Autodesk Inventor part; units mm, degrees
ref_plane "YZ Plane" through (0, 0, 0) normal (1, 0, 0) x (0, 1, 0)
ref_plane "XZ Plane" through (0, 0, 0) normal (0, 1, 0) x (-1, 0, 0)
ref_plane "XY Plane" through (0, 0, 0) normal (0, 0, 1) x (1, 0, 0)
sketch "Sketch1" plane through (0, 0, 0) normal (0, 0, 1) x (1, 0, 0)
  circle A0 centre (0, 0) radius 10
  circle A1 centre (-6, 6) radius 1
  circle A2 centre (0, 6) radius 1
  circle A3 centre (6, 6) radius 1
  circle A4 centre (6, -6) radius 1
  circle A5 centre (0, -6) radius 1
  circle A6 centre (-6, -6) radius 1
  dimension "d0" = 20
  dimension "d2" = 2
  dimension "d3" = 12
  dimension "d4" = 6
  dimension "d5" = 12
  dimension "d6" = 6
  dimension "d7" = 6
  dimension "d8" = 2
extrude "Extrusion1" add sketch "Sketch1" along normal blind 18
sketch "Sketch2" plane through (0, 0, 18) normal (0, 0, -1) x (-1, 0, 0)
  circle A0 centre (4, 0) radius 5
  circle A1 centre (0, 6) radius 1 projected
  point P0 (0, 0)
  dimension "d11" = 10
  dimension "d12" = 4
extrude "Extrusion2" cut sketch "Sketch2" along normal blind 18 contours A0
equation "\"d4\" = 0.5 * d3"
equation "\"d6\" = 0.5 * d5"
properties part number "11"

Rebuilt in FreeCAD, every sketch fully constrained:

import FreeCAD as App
import Part
import Sketcher

V = App.Vector
Q = App.Units.Quantity

doc = App.newDocument("Part")
body = doc.addObject("PartDesign::Body", "Body")

sketch1 = body.newObject("Sketcher::SketchObject", "Sketch")
sketch1.AttachmentSupport = (doc.getObject("XY_Plane"), [""])
sketch1.MapMode = "FlatFace"
sketch1.addGeometry([
    Part.Circle(V(0, 0, 0), V(0, 0, 1), 10),
    Part.Circle(V(-6, -6, 0), V(0, 0, 1), 1),
    Part.Circle(V(0, -6, 0), V(0, 0, 1), 1),
    Part.Circle(V(6, -6, 0), V(0, 0, 1), 1),
    Part.Circle(V(-6, 6, 0), V(0, 0, 1), 1),
    Part.Circle(V(0, 6, 0), V(0, 0, 1), 1),
    Part.Circle(V(6, 6, 0), V(0, 0, 1), 1),
], False)
sketch1.addConstraint([
    Sketcher.Constraint("Coincident", 0, 3, -1, 1),
    Sketcher.Constraint("Equal", 1, 2),
    Sketcher.Constraint("Equal", 2, 3),
    Sketcher.Constraint("Equal", 3, 4),
    Sketcher.Constraint("Equal", 4, 5),
    Sketcher.Constraint("Equal", 5, 6),
    Sketcher.Constraint("Symmetric", 3, 3, 4, 3, -1, 1),
    Sketcher.Constraint("Symmetric", 2, 3, 5, 3, -1, 1),
    Sketcher.Constraint("Symmetric", 1, 3, 6, 3, -1, 1),
    Sketcher.Constraint("Symmetric", 1, 3, 3, 3, -2),
    Sketcher.Constraint("PointOnObject", 2, 3, -2),
    Sketcher.Constraint("Horizontal", 1, 3, 2, 3),
    Sketcher.Constraint("Diameter", 0, Q("20 mm")),
    Sketcher.Constraint("Diameter", 1, Q("2 mm")),
    Sketcher.Constraint("DistanceX", 1, 3, -1, 1, Q("6 mm")),
    Sketcher.Constraint("DistanceY", 1, 3, -1, 1, Q("6 mm")),
])
pad1 = body.newObject("PartDesign::Pad", "Pad")
pad1.Profile = sketch1
pad1.Length = 18

sketch2 = body.newObject("Sketcher::SketchObject", "Sketch001")
sketch2.AttachmentSupport = (doc.getObject("XY_Plane"), [""])
sketch2.MapMode = "FlatFace"
sketch2.AttachmentOffset = App.Placement(V(0, 0, 18), App.Rotation())
sketch2.addGeometry(Part.Circle(V(-4, 0, 0), V(0, 0, 1), 5), False)
sketch2.addConstraint([
    Sketcher.Constraint("PointOnObject", 0, 3, -1),
    Sketcher.Constraint("Diameter", 0, Q("10 mm")),
    Sketcher.Constraint("DistanceX", 0, 3, -1, 1, Q("4 mm")),
])
pocket1 = body.newObject("PartDesign::Pocket", "Pocket")
pocket1.Profile = sketch2
pocket1.Length = 18

doc.recompute()
